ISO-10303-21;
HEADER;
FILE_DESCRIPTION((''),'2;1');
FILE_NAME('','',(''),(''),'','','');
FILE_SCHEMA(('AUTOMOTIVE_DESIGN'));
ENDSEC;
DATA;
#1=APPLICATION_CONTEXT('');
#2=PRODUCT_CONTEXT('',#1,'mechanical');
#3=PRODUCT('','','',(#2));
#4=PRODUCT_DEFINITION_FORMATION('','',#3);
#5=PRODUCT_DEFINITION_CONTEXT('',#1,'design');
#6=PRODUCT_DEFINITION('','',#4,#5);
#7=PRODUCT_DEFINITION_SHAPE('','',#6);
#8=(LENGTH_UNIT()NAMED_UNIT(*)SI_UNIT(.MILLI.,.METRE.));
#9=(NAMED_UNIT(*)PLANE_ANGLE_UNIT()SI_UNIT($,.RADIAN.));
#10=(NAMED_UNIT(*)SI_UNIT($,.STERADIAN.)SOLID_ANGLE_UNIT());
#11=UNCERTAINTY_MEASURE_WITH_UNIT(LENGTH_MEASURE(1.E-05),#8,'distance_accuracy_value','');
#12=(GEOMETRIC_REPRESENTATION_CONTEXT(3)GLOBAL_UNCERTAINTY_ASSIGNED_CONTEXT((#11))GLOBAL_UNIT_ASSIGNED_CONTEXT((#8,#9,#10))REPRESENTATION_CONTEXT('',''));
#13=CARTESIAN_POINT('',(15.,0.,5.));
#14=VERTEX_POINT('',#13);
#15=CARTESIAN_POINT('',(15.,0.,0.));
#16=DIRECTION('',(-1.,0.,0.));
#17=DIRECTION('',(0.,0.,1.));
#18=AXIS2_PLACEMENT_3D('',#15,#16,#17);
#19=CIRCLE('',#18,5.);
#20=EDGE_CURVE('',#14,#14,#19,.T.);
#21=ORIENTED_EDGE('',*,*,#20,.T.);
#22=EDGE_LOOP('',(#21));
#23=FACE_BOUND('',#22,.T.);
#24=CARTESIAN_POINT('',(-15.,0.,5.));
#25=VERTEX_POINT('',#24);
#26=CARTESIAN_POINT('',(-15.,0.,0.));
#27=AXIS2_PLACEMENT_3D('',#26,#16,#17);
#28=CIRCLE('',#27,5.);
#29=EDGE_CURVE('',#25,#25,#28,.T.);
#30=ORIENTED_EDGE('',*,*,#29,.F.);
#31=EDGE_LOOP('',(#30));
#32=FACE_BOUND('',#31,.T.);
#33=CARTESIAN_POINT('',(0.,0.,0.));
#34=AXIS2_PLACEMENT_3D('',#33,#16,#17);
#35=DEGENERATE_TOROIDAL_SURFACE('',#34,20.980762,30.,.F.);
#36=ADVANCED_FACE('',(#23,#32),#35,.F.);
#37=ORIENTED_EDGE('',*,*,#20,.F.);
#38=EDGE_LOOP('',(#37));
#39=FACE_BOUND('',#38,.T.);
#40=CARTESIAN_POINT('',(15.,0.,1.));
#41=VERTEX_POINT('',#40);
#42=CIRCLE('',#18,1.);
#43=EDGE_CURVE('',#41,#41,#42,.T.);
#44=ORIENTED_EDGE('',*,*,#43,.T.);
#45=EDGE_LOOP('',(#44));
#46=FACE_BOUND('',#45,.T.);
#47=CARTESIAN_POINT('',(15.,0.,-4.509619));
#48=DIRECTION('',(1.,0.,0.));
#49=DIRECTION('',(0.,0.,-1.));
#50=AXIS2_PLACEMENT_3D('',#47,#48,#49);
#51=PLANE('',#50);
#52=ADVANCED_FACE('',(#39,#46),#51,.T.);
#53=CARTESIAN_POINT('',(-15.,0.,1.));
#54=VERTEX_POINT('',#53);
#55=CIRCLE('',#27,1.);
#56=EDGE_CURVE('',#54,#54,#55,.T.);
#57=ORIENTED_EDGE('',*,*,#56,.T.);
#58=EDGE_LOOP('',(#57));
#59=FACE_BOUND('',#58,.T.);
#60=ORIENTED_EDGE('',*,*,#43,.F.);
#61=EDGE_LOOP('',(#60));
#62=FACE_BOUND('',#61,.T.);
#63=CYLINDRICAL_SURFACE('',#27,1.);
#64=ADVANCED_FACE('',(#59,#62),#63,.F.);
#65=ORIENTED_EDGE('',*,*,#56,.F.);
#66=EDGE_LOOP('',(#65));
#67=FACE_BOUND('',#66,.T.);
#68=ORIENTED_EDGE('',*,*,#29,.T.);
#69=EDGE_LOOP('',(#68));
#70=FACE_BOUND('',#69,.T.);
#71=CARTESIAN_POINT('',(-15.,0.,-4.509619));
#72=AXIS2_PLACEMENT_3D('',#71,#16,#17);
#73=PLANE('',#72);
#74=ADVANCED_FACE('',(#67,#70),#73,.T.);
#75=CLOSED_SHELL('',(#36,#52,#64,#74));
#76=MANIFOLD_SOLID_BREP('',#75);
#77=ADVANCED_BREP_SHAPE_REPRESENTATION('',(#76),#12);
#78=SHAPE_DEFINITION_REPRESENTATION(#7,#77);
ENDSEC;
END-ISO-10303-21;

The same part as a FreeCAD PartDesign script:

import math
import FreeCAD as App
import Part
import Sketcher
from FreeCAD import Vector

doc = App.newDocument("Part")
body = doc.addObject("PartDesign::Body", "Body")

sketch1 = body.newObject("Sketcher::SketchObject", "Sketch")
sketch1.AttachmentSupport = (doc.getObject("XZ_Plane"), [""])
sketch1.MapMode = "FlatFace"
sketch1.addGeometry(Part.LineSegment(Vector(-15, -5, 0), Vector(-15, -1, 0)), False)
sketch1.addGeometry(Part.LineSegment(Vector(-15, -1, 0), Vector(15, -1, 0)), False)
sketch1.addGeometry(Part.LineSegment(Vector(15, -1, 0), Vector(15, -5, 0)), False)
sketch1.addGeometry(Part.ArcOfCircle(Part.Circle(Vector(0, 21, 0), Vector(0, 0, 1), 30), math.radians(-120), math.radians(-60)), False)
sketch1.addConstraint(Sketcher.Constraint("Coincident", 0, 2, 1, 1))
sketch1.addConstraint(Sketcher.Constraint("Coincident", 1, 2, 2, 1))
sketch1.addConstraint(Sketcher.Constraint("Coincident", 2, 2, 3, 2))
sketch1.addConstraint(Sketcher.Constraint("Coincident", 3, 1, 0, 1))
sketch1.addConstraint(Sketcher.Constraint("Vertical", 0))
sketch1.addConstraint(Sketcher.Constraint("Horizontal", 1))
sketch1.addConstraint(Sketcher.Constraint("Vertical", 2))
sketch1.addConstraint(Sketcher.Constraint("Symmetric", 2, 2, 3, 1, -2))
sketch1.addConstraint(Sketcher.Constraint("Radius", 3, 30.0))
sketch1.addConstraint(Sketcher.Constraint("DistanceX", 1, 1, 1, 2, 30.0))
sketch1.addConstraint(Sketcher.Constraint("DistanceY", 0, 1, 0, 2, 4.0))
sketch1.addConstraint(Sketcher.Constraint("DistanceY", 0, 2, -1, 1, 1.0))
revolution = body.newObject("PartDesign::Revolution", "Revolution")
revolution.Profile = sketch1
revolution.ReferenceAxis = (sketch1, ["H_Axis"])
revolution.Angle = 360

doc.recompute()
